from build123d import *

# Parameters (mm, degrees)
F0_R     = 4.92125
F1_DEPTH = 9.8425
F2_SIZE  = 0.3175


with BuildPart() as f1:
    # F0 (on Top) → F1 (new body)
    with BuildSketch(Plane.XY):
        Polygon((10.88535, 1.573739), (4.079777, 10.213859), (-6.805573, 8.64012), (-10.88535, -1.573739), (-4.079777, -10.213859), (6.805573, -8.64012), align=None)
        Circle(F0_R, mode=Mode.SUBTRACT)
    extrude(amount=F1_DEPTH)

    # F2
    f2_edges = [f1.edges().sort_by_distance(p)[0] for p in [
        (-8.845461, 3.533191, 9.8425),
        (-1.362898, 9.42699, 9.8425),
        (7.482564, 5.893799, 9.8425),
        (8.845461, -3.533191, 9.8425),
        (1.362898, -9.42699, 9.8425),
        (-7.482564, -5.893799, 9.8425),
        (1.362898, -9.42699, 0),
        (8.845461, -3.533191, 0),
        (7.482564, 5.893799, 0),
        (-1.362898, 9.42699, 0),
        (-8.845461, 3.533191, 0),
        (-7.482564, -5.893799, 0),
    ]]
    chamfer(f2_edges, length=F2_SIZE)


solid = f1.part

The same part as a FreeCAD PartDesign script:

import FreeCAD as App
import Part
import Sketcher

V = App.Vector


def edges_at(feature, points):
    """Names of the edges that pass closest to the given points."""
    edges = feature.Shape.Edges
    near = lambda p: min(range(len(edges)), key=lambda i: edges[i].distToShape(Part.Vertex(*p))[0])
    return sorted({f"Edge{near(p) + 1}" for p in points})


def add_polygon(sketch, points):
    """Adds a closed chain of lines whose ends are joined by coincident constraints."""
    first, n = sketch.GeometryCount, len(points)
    for a, b in zip(points, points[1:] + points[:1]):
        sketch.addGeometry(Part.LineSegment(App.Vector(*a, 0), App.Vector(*b, 0)), False)
    for i in range(n):
        sketch.addConstraint(Sketcher.Constraint("Coincident", first + i, 2, first + (i + 1) % n, 1))

doc = App.newDocument("Part")
body = doc.addObject("PartDesign::Body", "Body")

# Sketch on XY plane
sketch1 = doc.addObject("Sketcher::SketchObject", "Sketch")
body.addObject(sketch1)
sketch1.AttachmentSupport = (doc.XY_Plane, [""])
sketch1.MapMode = "FlatFace"
add_polygon(sketch1, [(10.88535, 1.573739), (4.079777, 10.213859), (-6.805573, 8.64012), (-10.88535, -1.573739), (-4.079777, -10.213859), (6.805573, -8.64012)])  # lines 0-5
sketch1.addGeometry(Part.Circle(V(0, 0, 0), V(0, 0, 1), 4.92125), False)  # 6
sketch1.addConstraint(Sketcher.Constraint("Coincident", 6, 3, -1, 1))
sketch1.addConstraint(Sketcher.Constraint("Symmetric", 0, 2, 3, 2, -1, 1))
sketch1.addConstraint(Sketcher.Constraint("Symmetric", 1, 2, 4, 2, -1, 1))
sketch1.addConstraint(Sketcher.Constraint("Symmetric", 2, 2, 5, 2, -1, 1))
sketch1.addConstraint(Sketcher.Constraint("Equal", 0, 1))
sketch1.addConstraint(Sketcher.Constraint("Equal", 1, 2))
sketch1.addConstraint(Sketcher.Constraint("Diameter", 6, 9.8425))
sketch1.addConstraint(Sketcher.Constraint("DistanceY", -1, 1, 0, 2, 10.213859))
sketch1.addConstraint(Sketcher.Constraint("DistanceY", -1, 1, 1, 2, 8.64012))
sketch1.addConstraint(Sketcher.Constraint("DistanceX", 2, 2, -1, 1, 10.88535))
sketch1.addConstraint(Sketcher.Constraint("DistanceY", 2, 2, -1, 1, 1.573739))
pad1 = doc.addObject("PartDesign::Pad", "Pad")
body.addObject(pad1)
pad1.Profile = sketch1
pad1.Length = 9.8425
doc.recompute()

chamfer = doc.addObject("PartDesign::Chamfer", "Chamfer")
body.addObject(chamfer)
chamfer.Base = (pad1, edges_at(pad1, [
    (-8.845, 3.533, 9.842),
    (-1.363, 9.427, 9.842),
    (7.483, 5.894, 9.842),
    (8.845, -3.533, 9.842),
    (1.363, -9.427, 9.842),
    (-7.483, -5.894, 9.842),
    (1.363, -9.427, 0),
    (8.845, -3.533, 0),
    (7.483, 5.894, 0),
    (-1.363, 9.427, 0),
    (-8.845, 3.533, 0),
    (-7.483, -5.894, 0),
]))
chamfer.Size = 0.3175

doc.recompute()
